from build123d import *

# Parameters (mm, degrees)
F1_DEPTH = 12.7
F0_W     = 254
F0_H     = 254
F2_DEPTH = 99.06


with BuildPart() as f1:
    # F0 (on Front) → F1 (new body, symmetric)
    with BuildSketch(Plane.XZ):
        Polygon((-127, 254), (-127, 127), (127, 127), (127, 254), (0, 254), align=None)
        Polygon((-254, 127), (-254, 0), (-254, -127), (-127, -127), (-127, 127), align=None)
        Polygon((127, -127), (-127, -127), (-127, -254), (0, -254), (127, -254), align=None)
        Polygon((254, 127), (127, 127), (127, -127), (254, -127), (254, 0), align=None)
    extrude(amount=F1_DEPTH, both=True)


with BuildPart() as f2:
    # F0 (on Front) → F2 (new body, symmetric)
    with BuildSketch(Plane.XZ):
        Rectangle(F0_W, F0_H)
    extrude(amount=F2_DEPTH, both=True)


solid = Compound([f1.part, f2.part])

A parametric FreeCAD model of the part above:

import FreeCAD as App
import Part
import Sketcher

V = App.Vector
Q = App.Units.Quantity


def add_polygon(sketch, points):
    """Adds a closed chain of lines whose ends are joined by coincident constraints."""
    first, n = sketch.GeometryCount, len(points)
    for a, b in zip(points, points[1:] + points[:1]):
        sketch.addGeometry(Part.LineSegment(App.Vector(*a, 0), App.Vector(*b, 0)), False)
    for i in range(n):
        sketch.addConstraint(Sketcher.Constraint("Coincident", first + i, 2, first + (i + 1) % n, 1))

doc = App.newDocument("Part")
body = doc.addObject("PartDesign::Body", "Body")
body.AllowCompound = True

# Sketch on XZ plane
sketch1 = body.newObject("Sketcher::SketchObject", "Sketch")
sketch1.AttachmentSupport = (doc.getObject("XZ_Plane"), [""])
sketch1.MapMode = "FlatFace"
add_polygon(sketch1, [(-127, 254), (-127, 127), (127, 127), (127, 254)])  # lines 0-3
add_polygon(sketch1, [(-254, 127), (-254, -127), (-127, -127), (-127, 127)])  # lines 4-7
add_polygon(sketch1, [(127, -127), (-127, -127), (-127, -254), (127, -254)])  # lines 8-11
add_polygon(sketch1, [(254, 127), (127, 127), (127, -127), (254, -127)])  # lines 12-15
sketch1.addConstraint([
    Sketcher.Constraint("Vertical", 0),
    Sketcher.Constraint("Horizontal", 1),
    Sketcher.Constraint("Vertical", 2),
    Sketcher.Constraint("Horizontal", 3),
    Sketcher.Constraint("Vertical", 4),
    Sketcher.Constraint("Horizontal", 5),
    Sketcher.Constraint("Vertical", 6),
    Sketcher.Constraint("Horizontal", 7),
    Sketcher.Constraint("Horizontal", 8),
    Sketcher.Constraint("Vertical", 9),
    Sketcher.Constraint("Horizontal", 10),
    Sketcher.Constraint("Vertical", 11),
    Sketcher.Constraint("Horizontal", 12),
    Sketcher.Constraint("Vertical", 13),
    Sketcher.Constraint("Horizontal", 14),
    Sketcher.Constraint("Vertical", 15),
    Sketcher.Constraint("Coincident", 6, 2, 0, 2),
    Sketcher.Constraint("Coincident", 8, 2, 5, 2),
    Sketcher.Constraint("Coincident", 12, 2, 1, 2),
    Sketcher.Constraint("Coincident", 13, 2, 11, 2),
    Sketcher.Constraint("Symmetric", 1, 2, 5, 2, -1, 1),
    Sketcher.Constraint("Equal", 7, 12),
    Sketcher.Constraint("Equal", 14, 0),
    Sketcher.Constraint("Equal", 10, 4),
    Sketcher.Constraint("Equal", 2, 9),
    Sketcher.Constraint("DistanceX", 1, 1, 1, 2, Q("10 in")),
    Sketcher.Constraint("DistanceX", 5, 1, 5, 2, Q("5 in")),
])
pad1 = body.newObject("PartDesign::Pad", "Pad")
pad1.Profile = sketch1
pad1.Length = Q("1 in")
pad1.Midplane = True
body2 = doc.addObject("PartDesign::Body", "Body001")

# Sketch on XZ plane
sketch2 = body2.newObject("Sketcher::SketchObject", "Sketch001")
sketch2.AttachmentSupport = (doc.getObject("XZ_Plane001"), [""])
sketch2.MapMode = "FlatFace"
add_polygon(sketch2, [(-127, 127), (-127, -127), (127, -127), (127, 127)])  # lines 0-3
sketch2.addConstraint([
    Sketcher.Constraint("Vertical", 0),
    Sketcher.Constraint("Horizontal", 1),
    Sketcher.Constraint("Vertical", 2),
    Sketcher.Constraint("Horizontal", 3),
    Sketcher.Constraint("Symmetric", 0, 2, 2, 2, -1, 1),
    Sketcher.Constraint("Equal", 3, 0),
    Sketcher.Constraint("DistanceX", 1, 1, 1, 2, Q("10 in")),
])
pad2 = body2.newObject("PartDesign::Pad", "Pad001")
pad2.Profile = sketch2
pad2.Length = Q("7.8 in")
pad2.Midplane = True

doc.recompute()
